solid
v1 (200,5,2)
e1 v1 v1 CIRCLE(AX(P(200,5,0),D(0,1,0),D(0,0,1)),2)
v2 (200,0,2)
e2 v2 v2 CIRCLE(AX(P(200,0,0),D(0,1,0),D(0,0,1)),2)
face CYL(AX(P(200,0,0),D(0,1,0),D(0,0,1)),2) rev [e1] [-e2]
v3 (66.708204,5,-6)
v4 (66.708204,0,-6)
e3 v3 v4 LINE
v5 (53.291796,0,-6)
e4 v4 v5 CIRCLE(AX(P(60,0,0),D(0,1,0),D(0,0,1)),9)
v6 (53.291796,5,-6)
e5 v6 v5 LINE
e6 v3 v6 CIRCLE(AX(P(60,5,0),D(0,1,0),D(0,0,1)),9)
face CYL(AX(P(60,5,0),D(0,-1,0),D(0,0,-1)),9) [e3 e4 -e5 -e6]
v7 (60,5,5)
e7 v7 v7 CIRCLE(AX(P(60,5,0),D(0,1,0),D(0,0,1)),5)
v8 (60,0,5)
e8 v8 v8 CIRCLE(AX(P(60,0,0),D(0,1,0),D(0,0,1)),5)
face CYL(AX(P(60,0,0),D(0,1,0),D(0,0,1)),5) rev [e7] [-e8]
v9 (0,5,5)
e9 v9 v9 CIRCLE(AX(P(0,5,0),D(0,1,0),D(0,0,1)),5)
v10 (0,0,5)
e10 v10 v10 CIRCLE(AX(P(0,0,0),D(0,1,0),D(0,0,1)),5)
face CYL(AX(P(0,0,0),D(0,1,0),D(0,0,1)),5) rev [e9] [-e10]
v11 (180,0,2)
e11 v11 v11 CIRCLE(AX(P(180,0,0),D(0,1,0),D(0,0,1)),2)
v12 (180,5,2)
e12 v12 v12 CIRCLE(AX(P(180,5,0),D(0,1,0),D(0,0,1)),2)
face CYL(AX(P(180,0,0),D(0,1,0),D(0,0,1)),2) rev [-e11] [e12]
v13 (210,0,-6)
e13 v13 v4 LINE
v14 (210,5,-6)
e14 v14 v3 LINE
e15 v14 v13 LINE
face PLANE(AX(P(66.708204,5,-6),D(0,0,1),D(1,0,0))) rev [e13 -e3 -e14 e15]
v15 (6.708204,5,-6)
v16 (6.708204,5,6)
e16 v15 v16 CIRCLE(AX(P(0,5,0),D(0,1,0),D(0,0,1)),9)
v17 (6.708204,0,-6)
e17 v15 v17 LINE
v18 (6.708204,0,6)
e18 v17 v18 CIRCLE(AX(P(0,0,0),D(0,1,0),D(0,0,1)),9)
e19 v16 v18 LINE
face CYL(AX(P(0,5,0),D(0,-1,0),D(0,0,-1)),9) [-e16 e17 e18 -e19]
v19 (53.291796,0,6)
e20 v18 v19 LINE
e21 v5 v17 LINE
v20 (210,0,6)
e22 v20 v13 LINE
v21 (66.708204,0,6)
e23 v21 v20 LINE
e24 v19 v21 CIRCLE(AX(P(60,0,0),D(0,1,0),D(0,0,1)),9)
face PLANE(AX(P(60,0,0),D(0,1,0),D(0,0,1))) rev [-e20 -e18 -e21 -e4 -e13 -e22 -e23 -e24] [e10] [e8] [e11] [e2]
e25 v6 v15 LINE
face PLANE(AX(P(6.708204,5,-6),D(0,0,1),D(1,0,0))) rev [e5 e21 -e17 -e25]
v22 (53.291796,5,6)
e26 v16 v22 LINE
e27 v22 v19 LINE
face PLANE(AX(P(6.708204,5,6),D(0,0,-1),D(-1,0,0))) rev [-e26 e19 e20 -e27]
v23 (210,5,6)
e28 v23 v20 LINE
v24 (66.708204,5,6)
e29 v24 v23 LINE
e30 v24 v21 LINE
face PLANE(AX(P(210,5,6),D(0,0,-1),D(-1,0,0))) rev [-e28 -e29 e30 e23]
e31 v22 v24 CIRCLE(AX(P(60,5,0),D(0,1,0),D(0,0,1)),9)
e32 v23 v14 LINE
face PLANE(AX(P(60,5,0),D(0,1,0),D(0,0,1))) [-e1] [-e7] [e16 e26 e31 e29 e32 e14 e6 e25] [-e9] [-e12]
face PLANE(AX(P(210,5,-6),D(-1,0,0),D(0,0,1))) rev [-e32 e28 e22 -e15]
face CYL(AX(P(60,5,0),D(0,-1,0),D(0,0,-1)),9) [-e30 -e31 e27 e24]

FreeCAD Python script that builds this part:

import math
import FreeCAD as App
import Part
import Sketcher
Q = App.Units.Quantity

doc = App.newDocument("Part")
body = doc.addObject("PartDesign::Body", "Body")

# Sketch on XZ plane
sketch1 = body.newObject("Sketcher::SketchObject", "Sketch")
sketch1.AttachmentSupport = (doc.getObject("XZ_Plane"), [""])
sketch1.MapMode = "FlatFace"
sketch1.addGeometry(Part.LineSegment(App.Vector(53, -6, 0), App.Vector(7, -6, 0)), False)
sketch1.addGeometry(Part.ArcOfCircle(Part.Circle(App.Vector(0, 0, 0), App.Vector(0, 0, 1), 9), math.radians(42), math.radians(318)), False)
sketch1.addGeometry(Part.LineSegment(App.Vector(7, 6, 0), App.Vector(53, 6, 0)), False)
sketch1.addGeometry(Part.ArcOfCircle(Part.Circle(App.Vector(60, 0, 0), App.Vector(0, 0, 1), 9), math.radians(42), math.radians(138)), False)
sketch1.addGeometry(Part.LineSegment(App.Vector(67, 6, 0), App.Vector(210, 6, 0)), False)
sketch1.addGeometry(Part.LineSegment(App.Vector(210, 6, 0), App.Vector(210, -6, 0)), False)
sketch1.addGeometry(Part.LineSegment(App.Vector(210, -6, 0), App.Vector(67, -6, 0)), False)
sketch1.addGeometry(Part.ArcOfCircle(Part.Circle(App.Vector(60, 0, 0), App.Vector(0, 0, 1), 9), math.radians(-138), math.radians(-42)), False)
sketch1.addConstraint(Sketcher.Constraint("Coincident", 0, 2, 1, 2))
sketch1.addConstraint(Sketcher.Constraint("Coincident", 1, 1, 2, 1))
sketch1.addConstraint(Sketcher.Constraint("Coincident", 2, 2, 3, 2))
sketch1.addConstraint(Sketcher.Constraint("Coincident", 3, 1, 4, 1))
sketch1.addConstraint(Sketcher.Constraint("Coincident", 4, 2, 5, 1))
sketch1.addConstraint(Sketcher.Constraint("Coincident", 5, 2, 6, 1))
sketch1.addConstraint(Sketcher.Constraint("Coincident", 6, 2, 7, 2))
sketch1.addConstraint(Sketcher.Constraint("Coincident", 7, 1, 0, 1))
sketch1.addConstraint(Sketcher.Constraint("Horizontal", 0))
sketch1.addConstraint(Sketcher.Constraint("Horizontal", 2))
sketch1.addConstraint(Sketcher.Constraint("Horizontal", 4))
sketch1.addConstraint(Sketcher.Constraint("Vertical", 5))
sketch1.addConstraint(Sketcher.Constraint("Horizontal", 6))
sketch1.addConstraint(Sketcher.Constraint("Coincident", 1, 3, -1, 1))
sketch1.addConstraint(Sketcher.Constraint("Coincident", 7, 3, 3, 3))
sketch1.addConstraint(Sketcher.Constraint("Equal", 1, 3))
sketch1.addConstraint(Sketcher.Constraint("Equal", 3, 7))
sketch1.addConstraint(Sketcher.Constraint("Symmetric", 3, 1, 6, 2, -1))
sketch1.addConstraint(Sketcher.Constraint("Horizontal", 2, 2, 3, 1))
sketch1.addConstraint(Sketcher.Constraint("Horizontal", 0, 2, 5, 2))
sketch1.addConstraint(Sketcher.Constraint("Radius", 1, Q("9 mm")))
sketch1.addConstraint(Sketcher.Constraint("DistanceY", 5, 2, 5, 1, Q("12 mm")))
sketch1.addConstraint(Sketcher.Constraint("DistanceX", -1, 1, 3, 3, Q("60 mm")))
sketch1.addConstraint(Sketcher.Constraint("DistanceX", -1, 1, 4, 2, Q("210 mm")))
pad1 = body.newObject("PartDesign::Pad", "Pad")
pad1.Profile = sketch1
pad1.Length = 5
pad1.Reversed = True

# Sketch on XZ plane
sketch2 = body.newObject("Sketcher::SketchObject", "Sketch001")
sketch2.AttachmentSupport = (doc.getObject("XZ_Plane"), [""])
sketch2.MapMode = "FlatFace"
sketch2.AttachmentOffset = App.Placement(App.Vector(0, 0, -5), App.Rotation())
sketch2.addGeometry(Part.Circle(App.Vector(0, 0, 0), App.Vector(0, 0, 1), 5), False)
sketch2.addGeometry(Part.Circle(App.Vector(60, 0, 0), App.Vector(0, 0, 1), 5), False)
sketch2.addGeometry(Part.Circle(App.Vector(200, 0, 0), App.Vector(0, 0, 1), 2), False)
sketch2.addGeometry(Part.Circle(App.Vector(180, 0, 0), App.Vector(0, 0, 1), 2), False)
sketch2.addConstraint(Sketcher.Constraint("Coincident", 0, 3, -1, 1))
sketch2.addConstraint(Sketcher.Constraint("Equal", 0, 1))
sketch2.addConstraint(Sketcher.Constraint("Equal", 2, 3))
sketch2.addConstraint(Sketcher.Constraint("PointOnObject", 1, 3, -1))
sketch2.addConstraint(Sketcher.Constraint("PointOnObject", 2, 3, -1))
sketch2.addConstraint(Sketcher.Constraint("PointOnObject", 3, 3, -1))
sketch2.addConstraint(Sketcher.Constraint("Diameter", 0, Q("10 mm")))
sketch2.addConstraint(Sketcher.Constraint("Diameter", 2, Q("4 mm")))
sketch2.addConstraint(Sketcher.Constraint("DistanceX", -1, 1, 1, 3, Q("60 mm")))
sketch2.addConstraint(Sketcher.Constraint("DistanceX", -1, 1, 2, 3, Q("200 mm")))
sketch2.addConstraint(Sketcher.Constraint("DistanceX", -1, 1, 3, 3, Q("180 mm")))
pocket1 = body.newObject("PartDesign::Pocket", "Pocket")
pocket1.Profile = sketch2
pocket1.Type = "ThroughAll"
pocket1.Reversed = True

doc.recompute()
